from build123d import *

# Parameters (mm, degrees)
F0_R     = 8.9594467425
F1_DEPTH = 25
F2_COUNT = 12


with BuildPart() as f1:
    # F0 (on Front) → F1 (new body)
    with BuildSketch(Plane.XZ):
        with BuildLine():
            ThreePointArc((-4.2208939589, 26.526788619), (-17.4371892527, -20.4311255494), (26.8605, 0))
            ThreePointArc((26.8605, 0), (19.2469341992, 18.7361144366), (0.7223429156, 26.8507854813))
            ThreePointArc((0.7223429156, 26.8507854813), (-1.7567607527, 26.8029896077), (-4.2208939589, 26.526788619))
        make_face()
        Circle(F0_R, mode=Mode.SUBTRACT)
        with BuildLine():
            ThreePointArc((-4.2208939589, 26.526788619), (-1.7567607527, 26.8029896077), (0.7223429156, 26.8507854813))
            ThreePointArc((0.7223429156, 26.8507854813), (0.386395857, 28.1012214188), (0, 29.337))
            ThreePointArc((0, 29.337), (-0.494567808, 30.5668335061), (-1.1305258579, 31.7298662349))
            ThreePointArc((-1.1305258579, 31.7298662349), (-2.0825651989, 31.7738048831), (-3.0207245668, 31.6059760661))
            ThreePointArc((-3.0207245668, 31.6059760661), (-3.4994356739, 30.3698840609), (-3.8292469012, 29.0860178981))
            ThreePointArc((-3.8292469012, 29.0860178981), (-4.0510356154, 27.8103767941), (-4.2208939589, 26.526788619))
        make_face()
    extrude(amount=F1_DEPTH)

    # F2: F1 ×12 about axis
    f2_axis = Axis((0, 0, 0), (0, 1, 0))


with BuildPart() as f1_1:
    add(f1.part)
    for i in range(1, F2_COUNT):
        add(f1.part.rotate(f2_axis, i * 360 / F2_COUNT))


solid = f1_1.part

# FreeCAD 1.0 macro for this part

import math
import FreeCAD as App
import Part
import Sketcher

V = App.Vector

doc = App.newDocument("Part")
params = doc.addObject("Spreadsheet::Sheet", "Params")
for row, (alias, value) in enumerate([
    ("sketch1_radius", "4.28 mm"),
    ("pad1_length", "25 mm"),
], start=1):
    params.set(f"A{row}", alias)
    params.set(f"B{row}", "=" + value)
    params.setAlias(f"B{row}", alias)

body = doc.addObject("PartDesign::Body", "Body")

# Sketch on XZ plane
sketch1 = body.newObject("Sketcher::SketchObject", "Sketch")
sketch1.AttachmentSupport = (doc.getObject("XZ_Plane"), [""])
sketch1.MapMode = "FlatFace"
sketch1.addGeometry(Part.ArcOfCircle(Part.Circle(V(0, 0, 0), V(0, 0, 1), 26.8605), math.radians(99.041006), math.radians(448.458994)), False)
sketch1.addGeometry(Part.ArcOfCircle(Part.Circle(V(-30.257583, 19.197943, 0), V(0, 0, 1), 31.911155), math.radians(13.87575), math.radians(18.52556)), False)
sketch1.addGeometry(Part.ArcOfCircle(Part.Circle(V(-10.654038, 25.766923, 0), V(0, 0, 1), 11.23628), math.radians(18.52556), math.radians(32.051859)), False)
sketch1.addGeometry(Part.ArcOfCircle(Part.Circle(V(-1.80264, 27.502969, 0), V(0, 0, 1), 4.28), math.radians(80.965105), math.radians(106.534895)), False)
sketch1.addGeometry(Part.ArcOfCircle(Part.Circle(V(7.199633, 26.937114, 0), V(0, 0, 1), 11.23628), math.radians(155.448141), math.radians(168.97444)), False)
sketch1.addGeometry(Part.ArcOfCircle(Part.Circle(V(27.492891, 22.983109, 0), V(0, 0, 1), 31.911155), math.radians(168.97444), math.radians(173.62425)), False)
sketch1.addGeometry(Part.Circle(V(0, 0, 0), V(0, 0, 1), 8.959447), False)
sketch1.addConstraint(Sketcher.Constraint("Coincident", 0, 2, 1, 1))
sketch1.addConstraint(Sketcher.Constraint("Tangent", 1, 2, 2, 1))
sketch1.addConstraint(Sketcher.Constraint("Coincident", 2, 2, 3, 1))
sketch1.addConstraint(Sketcher.Constraint("Coincident", 3, 2, 4, 1))
sketch1.addConstraint(Sketcher.Constraint("Tangent", 4, 2, 5, 1))
sketch1.addConstraint(Sketcher.Constraint("Coincident", 5, 2, 0, 1))
sketch1.addConstraint(Sketcher.Constraint("Coincident", 0, 3, -1, 1))
sketch1.addConstraint(Sketcher.Constraint("Coincident", 6, 3, -1, 1))
sketch1.addConstraint(Sketcher.Constraint("Equal", 2, 4))
sketch1.addConstraint(Sketcher.Constraint("Equal", 1, 5))
sketch1.addConstraint(Sketcher.Constraint("PointOnObject", 1, 2, -2))
sketch1.addConstraint(Sketcher.Constraint("Radius", 3, 4.28))
sketch1.addConstraint(Sketcher.Constraint("Radius", 0, 26.8605))
sketch1.addConstraint(Sketcher.Constraint("Radius", 2, 11.23628))
sketch1.addConstraint(Sketcher.Constraint("Diameter", 6, 17.918893))
sketch1.addConstraint(Sketcher.Constraint("DistanceY", -1, 1, 1, 2, 29.337))
sketch1.addConstraint(Sketcher.Constraint("Radius", 1, 31.911155))
sketch1.addConstraint(Sketcher.Constraint("DistanceX", 2, 3, 3, 3, 8.851399))
sketch1.addConstraint(Sketcher.Constraint("DistanceX", 3, 2, 2, 2, 1.890199))
sketch1.addConstraint(Sketcher.Constraint("DistanceX", 2, 3, -1, 1, 10.654038))
sketch1.addConstraint(Sketcher.Constraint("DistanceY", -1, 1, 3, 3, 27.502969))
sketch1.addConstraint(Sketcher.Constraint("DistanceX", -1, 1, 5, 3, 27.492891))
sketch1.addConstraint(Sketcher.Constraint("DistanceY", -1, 1, 5, 3, 22.983109))
sketch1.setExpression("Constraints[11]", "Params.sketch1_radius")
pad1 = body.newObject("PartDesign::Pad", "Pad")
pad1.Profile = sketch1
pad1.setExpression("Length", "Params.pad1_length")
body2 = doc.addObject("PartDesign::Body", "Body001")
doc.recompute()

body2.BaseFeature = body
doc.recompute()

body3 = doc.addObject("PartDesign::Body", "Body002")
body3.BaseFeature = body
body3.Placement = App.Placement(V(0, 0, 0), App.Rotation(V(0, 1, 0), 30))
boolean = body2.newObject("PartDesign::Boolean", "Boolean")
boolean.Type = "Fuse"
boolean.addObjects([body3])
doc.recompute()

body4 = doc.addObject("PartDesign::Body", "Body003")
body4.BaseFeature = body
body4.Placement = App.Placement(V(0, 0, 0), App.Rotation(V(0, 1, 0), 60))
boolean2 = body2.newObject("PartDesign::Boolean", "Boolean001")
boolean2.Type = "Fuse"
boolean2.addObjects([body4])
doc.recompute()

body5 = doc.addObject("PartDesign::Body", "Body004")
body5.BaseFeature = body
body5.Placement = App.Placement(V(0, 0, 0), App.Rotation(V(0, 1, 0), 90))
boolean3 = body2.newObject("PartDesign::Boolean", "Boolean002")
boolean3.Type = "Fuse"
boolean3.addObjects([body5])
doc.recompute()

body6 = doc.addObject("PartDesign::Body", "Body005")
body6.BaseFeature = body
body6.Placement = App.Placement(V(0, 0, 0), App.Rotation(V(0, 1, 0), 120))
boolean4 = body2.newObject("PartDesign::Boolean", "Boolean003")
boolean4.Type = "Fuse"
boolean4.addObjects([body6])
doc.recompute()

body7 = doc.addObject("PartDesign::Body", "Body006")
body7.BaseFeature = body
body7.Placement = App.Placement(V(0, 0, 0), App.Rotation(V(0, 1, 0), 150))
boolean5 = body2.newObject("PartDesign::Boolean", "Boolean004")
boolean5.Type = "Fuse"
boolean5.addObjects([body7])
doc.recompute()

body8 = doc.addObject("PartDesign::Body", "Body007")
body8.BaseFeature = body
body8.Placement = App.Placement(V(0, 0, 0), App.Rotation(V(0, 1, 0), 180))
boolean6 = body2.newObject("PartDesign::Boolean", "Boolean005")
boolean6.Type = "Fuse"
boolean6.addObjects([body8])
doc.recompute()

body9 = doc.addObject("PartDesign::Body", "Body008")
body9.BaseFeature = body
body9.Placement = App.Placement(V(0, 0, 0), App.Rotation(V(0, 1, 0), 210))
boolean7 = body2.newObject("PartDesign::Boolean", "Boolean006")
boolean7.Type = "Fuse"
boolean7.addObjects([body9])
doc.recompute()

body10 = doc.addObject("PartDesign::Body", "Body009")
body10.BaseFeature = body
body10.Placement = App.Placement(V(0, 0, 0), App.Rotation(V(0, 1, 0), 240))
boolean8 = body2.newObject("PartDesign::Boolean", "Boolean007")
boolean8.Type = "Fuse"
boolean8.addObjects([body10])
doc.recompute()

body11 = doc.addObject("PartDesign::Body", "Body010")
body11.BaseFeature = body
body11.Placement = App.Placement(V(0, 0, 0), App.Rotation(V(0, 1, 0), 270))
boolean9 = body2.newObject("PartDesign::Boolean", "Boolean008")
boolean9.Type = "Fuse"
boolean9.addObjects([body11])
doc.recompute()

body12 = doc.addObject("PartDesign::Body", "Body011")
body12.BaseFeature = body
body12.Placement = App.Placement(V(0, 0, 0), App.Rotation(V(0, 1, 0), 300))
boolean10 = body2.newObject("PartDesign::Boolean", "Boolean009")
boolean10.Type = "Fuse"
boolean10.addObjects([body12])
doc.recompute()

body.Placement = App.Placement(V(0, 0, 0), App.Rotation(V(0, 1, 0), 330))
boolean11 = body2.newObject("PartDesign::Boolean", "Boolean010")
boolean11.Type = "Fuse"
boolean11.addObjects([body])

doc.recompute()
